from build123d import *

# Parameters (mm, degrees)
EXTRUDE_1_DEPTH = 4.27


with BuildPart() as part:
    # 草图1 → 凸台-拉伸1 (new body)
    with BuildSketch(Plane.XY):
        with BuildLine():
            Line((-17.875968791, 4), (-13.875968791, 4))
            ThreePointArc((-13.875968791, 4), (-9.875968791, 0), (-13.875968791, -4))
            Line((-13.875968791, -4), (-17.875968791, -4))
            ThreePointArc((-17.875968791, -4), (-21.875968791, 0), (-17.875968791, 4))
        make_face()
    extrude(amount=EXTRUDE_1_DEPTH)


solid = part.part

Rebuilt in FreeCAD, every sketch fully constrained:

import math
import FreeCAD as App
import Part
import Sketcher

V = App.Vector

doc = App.newDocument("Part")
body = doc.addObject("PartDesign::Body", "Body")

# Sketch on XY plane
sketch1 = doc.addObject("Sketcher::SketchObject", "Sketch")
body.addObject(sketch1)
sketch1.AttachmentSupport = (doc.XY_Plane, [""])
sketch1.MapMode = "FlatFace"
sketch1.addGeometry([
    Part.LineSegment(V(-13.875969, 4, 0), V(-17.875969, 4, 0)),
    Part.ArcOfCircle(Part.Circle(V(-17.875969, 0, 0), V(0, 0, 1), 4), math.radians(90), math.radians(270)),
    Part.LineSegment(V(-17.875969, -4, 0), V(-13.875969, -4, 0)),
    Part.ArcOfCircle(Part.Circle(V(-13.875969, 0, 0), V(0, 0, 1), 4), math.radians(-90), math.radians(90)),
], False)
sketch1.addConstraint([
    Sketcher.Constraint("Tangent", 0, 2, 1, 1),
    Sketcher.Constraint("Tangent", 1, 2, 2, 1),
    Sketcher.Constraint("Tangent", 2, 2, 3, 1),
    Sketcher.Constraint("Tangent", 3, 2, 0, 1),
    Sketcher.Constraint("Horizontal", 0),
    Sketcher.Constraint("Horizontal", 2),
    Sketcher.Constraint("PointOnObject", 1, 3, -1),
    Sketcher.Constraint("Radius", 1, 4.0),
    Sketcher.Constraint("DistanceX", 0, 2, 0, 1, 4.0),
    Sketcher.Constraint("DistanceX", 1, 3, -1, 1, 17.875969),
])
pad1 = doc.addObject("PartDesign::Pad", "Pad")
body.addObject(pad1)
pad1.Profile = sketch1
pad1.Length = 4.27

doc.recompute()
